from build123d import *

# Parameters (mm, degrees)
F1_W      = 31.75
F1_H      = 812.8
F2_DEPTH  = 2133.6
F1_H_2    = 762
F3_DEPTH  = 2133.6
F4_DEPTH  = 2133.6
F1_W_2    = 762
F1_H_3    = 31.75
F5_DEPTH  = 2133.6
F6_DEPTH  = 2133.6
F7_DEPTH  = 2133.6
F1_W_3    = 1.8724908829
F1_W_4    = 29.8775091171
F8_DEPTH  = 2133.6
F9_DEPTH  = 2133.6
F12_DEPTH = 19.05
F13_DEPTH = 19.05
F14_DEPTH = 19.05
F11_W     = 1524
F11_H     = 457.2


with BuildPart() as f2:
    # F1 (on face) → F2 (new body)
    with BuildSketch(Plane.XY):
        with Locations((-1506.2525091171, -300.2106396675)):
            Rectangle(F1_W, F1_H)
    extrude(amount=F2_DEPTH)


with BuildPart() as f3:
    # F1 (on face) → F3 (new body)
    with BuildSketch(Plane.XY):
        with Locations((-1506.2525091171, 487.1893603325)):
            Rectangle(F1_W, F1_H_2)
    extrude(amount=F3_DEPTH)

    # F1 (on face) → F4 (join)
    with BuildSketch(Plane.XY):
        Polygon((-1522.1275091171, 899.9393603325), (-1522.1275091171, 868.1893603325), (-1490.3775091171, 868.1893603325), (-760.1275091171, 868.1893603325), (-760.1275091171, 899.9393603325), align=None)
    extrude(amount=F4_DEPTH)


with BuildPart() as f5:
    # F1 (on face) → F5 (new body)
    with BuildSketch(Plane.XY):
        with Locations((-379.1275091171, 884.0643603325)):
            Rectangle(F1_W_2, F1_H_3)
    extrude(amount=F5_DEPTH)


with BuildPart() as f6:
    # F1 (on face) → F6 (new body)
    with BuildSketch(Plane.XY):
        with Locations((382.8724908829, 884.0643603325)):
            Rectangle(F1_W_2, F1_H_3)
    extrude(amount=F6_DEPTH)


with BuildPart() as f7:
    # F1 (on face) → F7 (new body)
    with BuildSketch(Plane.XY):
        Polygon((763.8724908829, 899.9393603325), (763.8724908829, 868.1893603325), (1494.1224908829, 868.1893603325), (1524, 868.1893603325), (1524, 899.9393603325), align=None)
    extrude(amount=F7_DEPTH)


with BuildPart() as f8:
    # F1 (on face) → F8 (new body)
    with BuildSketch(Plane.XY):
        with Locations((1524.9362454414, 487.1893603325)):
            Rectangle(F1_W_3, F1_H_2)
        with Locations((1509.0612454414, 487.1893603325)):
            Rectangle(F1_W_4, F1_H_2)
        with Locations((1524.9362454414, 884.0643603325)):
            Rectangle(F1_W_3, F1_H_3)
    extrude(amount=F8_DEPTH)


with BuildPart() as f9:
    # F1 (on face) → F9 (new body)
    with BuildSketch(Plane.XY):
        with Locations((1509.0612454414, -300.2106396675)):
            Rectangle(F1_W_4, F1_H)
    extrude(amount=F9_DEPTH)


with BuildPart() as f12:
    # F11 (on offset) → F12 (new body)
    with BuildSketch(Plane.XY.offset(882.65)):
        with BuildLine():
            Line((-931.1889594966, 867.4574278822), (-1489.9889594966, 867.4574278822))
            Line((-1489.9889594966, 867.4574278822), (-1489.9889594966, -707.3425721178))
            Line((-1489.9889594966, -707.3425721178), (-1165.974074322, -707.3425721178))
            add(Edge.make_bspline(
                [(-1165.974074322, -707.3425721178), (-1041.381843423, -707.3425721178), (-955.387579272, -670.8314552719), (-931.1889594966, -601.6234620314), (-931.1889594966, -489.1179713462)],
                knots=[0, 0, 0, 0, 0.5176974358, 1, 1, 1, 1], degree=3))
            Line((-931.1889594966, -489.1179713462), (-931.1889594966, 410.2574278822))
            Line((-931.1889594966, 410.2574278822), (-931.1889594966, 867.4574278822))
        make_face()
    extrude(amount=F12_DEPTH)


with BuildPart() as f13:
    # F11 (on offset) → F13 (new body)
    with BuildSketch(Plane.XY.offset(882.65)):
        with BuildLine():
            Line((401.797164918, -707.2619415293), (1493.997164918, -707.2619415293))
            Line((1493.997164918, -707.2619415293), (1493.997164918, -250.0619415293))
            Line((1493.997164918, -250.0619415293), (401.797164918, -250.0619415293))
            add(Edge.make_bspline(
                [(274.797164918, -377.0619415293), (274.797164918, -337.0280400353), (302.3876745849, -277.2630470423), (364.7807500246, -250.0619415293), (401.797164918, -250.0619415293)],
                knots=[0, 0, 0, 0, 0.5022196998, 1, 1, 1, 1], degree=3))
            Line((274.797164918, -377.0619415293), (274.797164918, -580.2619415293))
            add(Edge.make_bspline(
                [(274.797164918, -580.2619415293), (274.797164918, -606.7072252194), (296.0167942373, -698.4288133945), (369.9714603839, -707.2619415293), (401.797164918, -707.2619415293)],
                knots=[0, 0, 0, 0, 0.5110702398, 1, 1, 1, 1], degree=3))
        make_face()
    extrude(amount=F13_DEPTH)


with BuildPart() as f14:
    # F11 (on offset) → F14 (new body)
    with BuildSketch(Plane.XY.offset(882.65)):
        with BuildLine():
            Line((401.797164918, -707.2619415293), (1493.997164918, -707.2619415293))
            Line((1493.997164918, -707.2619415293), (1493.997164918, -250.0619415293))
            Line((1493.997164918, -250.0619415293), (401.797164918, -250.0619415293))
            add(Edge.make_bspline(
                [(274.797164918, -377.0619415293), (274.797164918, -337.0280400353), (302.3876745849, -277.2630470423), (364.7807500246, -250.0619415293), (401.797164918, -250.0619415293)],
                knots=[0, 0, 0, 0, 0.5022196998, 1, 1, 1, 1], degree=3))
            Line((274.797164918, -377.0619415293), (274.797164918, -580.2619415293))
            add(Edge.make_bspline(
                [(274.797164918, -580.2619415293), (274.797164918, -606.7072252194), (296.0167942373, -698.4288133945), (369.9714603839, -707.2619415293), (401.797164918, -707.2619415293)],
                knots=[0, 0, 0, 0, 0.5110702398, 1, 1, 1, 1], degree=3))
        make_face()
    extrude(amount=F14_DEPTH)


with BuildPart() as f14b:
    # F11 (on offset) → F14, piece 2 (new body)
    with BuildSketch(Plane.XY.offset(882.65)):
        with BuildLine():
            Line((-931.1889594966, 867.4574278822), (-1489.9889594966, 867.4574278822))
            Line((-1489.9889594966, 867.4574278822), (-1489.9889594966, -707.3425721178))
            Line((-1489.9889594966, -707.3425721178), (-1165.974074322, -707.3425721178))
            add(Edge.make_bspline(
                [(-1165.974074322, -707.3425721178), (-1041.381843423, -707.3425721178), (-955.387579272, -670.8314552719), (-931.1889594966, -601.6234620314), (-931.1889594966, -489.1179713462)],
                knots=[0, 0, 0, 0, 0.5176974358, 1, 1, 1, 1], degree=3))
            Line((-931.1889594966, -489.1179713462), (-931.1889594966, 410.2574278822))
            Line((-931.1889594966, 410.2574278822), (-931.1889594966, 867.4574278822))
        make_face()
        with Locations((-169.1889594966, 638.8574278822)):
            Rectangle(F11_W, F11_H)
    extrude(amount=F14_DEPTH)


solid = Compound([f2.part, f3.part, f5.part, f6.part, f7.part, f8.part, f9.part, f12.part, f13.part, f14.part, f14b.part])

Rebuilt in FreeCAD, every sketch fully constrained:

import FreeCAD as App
import Part
import Sketcher
from FreeCAD import Vector
Q = App.Units.Quantity


def add_polygon(sketch, points):
    """Adds a closed chain of lines whose ends are joined by coincident constraints."""
    first, n = sketch.GeometryCount, len(points)
    for a, b in zip(points, points[1:] + points[:1]):
        sketch.addGeometry(Part.LineSegment(App.Vector(*a, 0), App.Vector(*b, 0)), False)
    for i in range(n):
        sketch.addConstraint(Sketcher.Constraint("Coincident", first + i, 2, first + (i + 1) % n, 1))

doc = App.newDocument("Part")
body = doc.addObject("PartDesign::Body", "Body")

# Sketch on XY plane
sketch1 = body.newObject("Sketcher::SketchObject", "Sketch")
sketch1.AttachmentSupport = (doc.getObject("XY_Plane"), [""])
sketch1.MapMode = "FlatFace"
add_polygon(sketch1, [(-1522, 106), (-1522, -707), (-1490, -707), (-1490, 106)])  # lines 0-3
sketch1.addConstraint([
    Sketcher.Constraint("Vertical", 0),
    Sketcher.Constraint("Horizontal", 1),
    Sketcher.Constraint("Vertical", 2),
    Sketcher.Constraint("Horizontal", 3),
    Sketcher.Constraint("DistanceY", 0, 2, 0, 1, Q("32 in")),
    Sketcher.Constraint("DistanceX", 1, 1, 1, 2, Q("1.25 in")),
    Sketcher.Constraint("DistanceX", 0, 2, -1, 1, 1522.127509),
    Sketcher.Constraint("DistanceY", 0, 2, -1, 1, 706.61064),
])
pad1 = body.newObject("PartDesign::Pad", "Pad")
pad1.Profile = sketch1
pad1.Length = Q("84 in")
body2 = doc.addObject("PartDesign::Body", "Body001")

# Sketch on XY plane
sketch2 = body2.newObject("Sketcher::SketchObject", "Sketch001")
sketch2.AttachmentSupport = (doc.getObject("XY_Plane001"), [""])
sketch2.MapMode = "FlatFace"
add_polygon(sketch2, [(-1522, 868), (-1522, 106), (-1490, 106), (-1490, 868)])  # lines 0-3
sketch2.addConstraint([
    Sketcher.Constraint("Vertical", 0),
    Sketcher.Constraint("Horizontal", 1),
    Sketcher.Constraint("Vertical", 2),
    Sketcher.Constraint("Horizontal", 3),
    Sketcher.Constraint("DistanceY", 0, 2, 0, 1, Q("30 in")),
    Sketcher.Constraint("DistanceX", 1, 1, 1, 2, Q("1.25 in")),
    Sketcher.Constraint("DistanceX", 0, 2, -1, 1, 1522.127509),
    Sketcher.Constraint("DistanceY", -1, 1, 0, 2, 106.18936),
])
pad2 = body2.newObject("PartDesign::Pad", "Pad001")
pad2.Profile = sketch2
pad2.Length = Q("84 in")

# Sketch on XY plane
sketch3 = body2.newObject("Sketcher::SketchObject", "Sketch002")
sketch3.AttachmentSupport = (doc.getObject("XY_Plane001"), [""])
sketch3.MapMode = "FlatFace"
add_polygon(sketch3, [(-1522, 900), (-1522, 868), (-760, 868), (-760, 900)])  # lines 0-3
sketch3.addConstraint([
    Sketcher.Constraint("Vertical", 0),
    Sketcher.Constraint("Horizontal", 1),
    Sketcher.Constraint("Vertical", 2),
    Sketcher.Constraint("Horizontal", 3),
    Sketcher.Constraint("DistanceX", 1, 1, 1, 2, Q("30 in")),
    Sketcher.Constraint("DistanceY", 0, 2, 0, 1, Q("1.25 in")),
    Sketcher.Constraint("DistanceX", 0, 2, -1, 1, 1522.127509),
    Sketcher.Constraint("DistanceY", -1, 1, 0, 2, 868.18936),
])
pad3 = body2.newObject("PartDesign::Pad", "Pad002")
pad3.Profile = sketch3
pad3.Length = Q("84 in")
body3 = doc.addObject("PartDesign::Body", "Body002")

# Sketch on XY plane
sketch4 = body3.newObject("Sketcher::SketchObject", "Sketch003")
sketch4.AttachmentSupport = (doc.getObject("XY_Plane002"), [""])
sketch4.MapMode = "FlatFace"
add_polygon(sketch4, [(-760, 900), (-760, 868), (2, 868), (2, 900)])  # lines 0-3
sketch4.addConstraint([
    Sketcher.Constraint("Vertical", 0),
    Sketcher.Constraint("Horizontal", 1),
    Sketcher.Constraint("Vertical", 2),
    Sketcher.Constraint("Horizontal", 3),
    Sketcher.Constraint("DistanceX", 1, 1, 1, 2, Q("30 in")),
    Sketcher.Constraint("DistanceY", 0, 2, 0, 1, Q("1.25 in")),
    Sketcher.Constraint("DistanceX", 0, 2, -1, 1, 760.127509),
    Sketcher.Constraint("DistanceY", -1, 1, 0, 2, 868.18936),
])
pad4 = body3.newObject("PartDesign::Pad", "Pad003")
pad4.Profile = sketch4
pad4.Length = Q("84 in")
body4 = doc.addObject("PartDesign::Body", "Body003")

# Sketch on XY plane
sketch5 = body4.newObject("Sketcher::SketchObject", "Sketch004")
sketch5.AttachmentSupport = (doc.getObject("XY_Plane003"), [""])
sketch5.MapMode = "FlatFace"
add_polygon(sketch5, [(2, 900), (2, 868), (764, 868), (764, 900)])  # lines 0-3
sketch5.addConstraint([
    Sketcher.Constraint("Vertical", 0),
    Sketcher.Constraint("Horizontal", 1),
    Sketcher.Constraint("Vertical", 2),
    Sketcher.Constraint("Horizontal", 3),
    Sketcher.Constraint("DistanceX", 1, 1, 1, 2, Q("30 in")),
    Sketcher.Constraint("DistanceY", 0, 2, 0, 1, Q("1.25 in")),
    Sketcher.Constraint("DistanceX", -1, 1, 0, 2, 1.872491),
    Sketcher.Constraint("DistanceY", -1, 1, 0, 2, 868.18936),
])
pad5 = body4.newObject("PartDesign::Pad", "Pad004")
pad5.Profile = sketch5
pad5.Length = Q("84 in")
body5 = doc.addObject("PartDesign::Body", "Body004")

# Sketch on XY plane
sketch6 = body5.newObject("Sketcher::SketchObject", "Sketch005")
sketch6.AttachmentSupport = (doc.getObject("XY_Plane004"), [""])
sketch6.MapMode = "FlatFace"
add_polygon(sketch6, [(764, 900), (764, 868), (1524, 868), (1524, 900)])  # lines 0-3
sketch6.addConstraint([
    Sketcher.Constraint("Vertical", 0),
    Sketcher.Constraint("Horizontal", 1),
    Sketcher.Constraint("Vertical", 2),
    Sketcher.Constraint("Horizontal", 3),
    Sketcher.Constraint("DistanceX", -1, 1, 1, 2, Q("60 in")),
    Sketcher.Constraint("DistanceY", 0, 2, 0, 1, Q("1.25 in")),
    Sketcher.Constraint("DistanceX", 1, 1, 1, 2, 760.127509),
    Sketcher.Constraint("DistanceY", -1, 1, 0, 2, 868.18936),
])
pad6 = body5.newObject("PartDesign::Pad", "Pad005")
pad6.Profile = sketch6
pad6.Length = Q("84 in")
body6 = doc.addObject("PartDesign::Body", "Body005")

# Sketch on XY plane
sketch7 = body6.newObject("Sketcher::SketchObject", "Sketch006")
sketch7.AttachmentSupport = (doc.getObject("XY_Plane005"), [""])
sketch7.MapMode = "FlatFace"
add_polygon(sketch7, [(1525.9, 106.2), (1525.9, 899.9), (1524, 899.9), (1524, 868.2), (1494.1, 868.2), (1494.1, 106.2)])  # lines 0-5
sketch7.addConstraint([
    Sketcher.Constraint("Vertical", 0),
    Sketcher.Constraint("Horizontal", 1),
    Sketcher.Constraint("Vertical", 2),
    Sketcher.Constraint("Horizontal", 3),
    Sketcher.Constraint("Vertical", 4),
    Sketcher.Constraint("Horizontal", 5),
    Sketcher.Constraint("Equal", 5, 2),
    Sketcher.Constraint("DistanceY", 4, 2, 4, 1, Q("30 in")),
    Sketcher.Constraint("DistanceX", -1, 1, 1, 2, Q("60 in")),
    Sketcher.Constraint("DistanceX", 5, 1, 5, 2, Q("1.25 in")),
    Sketcher.Constraint("DistanceX", 1, 2, 1, 1, 1.872491),
    Sketcher.Constraint("DistanceY", -1, 1, 0, 2, 899.93936),
])
pad7 = body6.newObject("PartDesign::Pad", "Pad006")
pad7.Profile = sketch7
pad7.Length = Q("84 in")
body7 = doc.addObject("PartDesign::Body", "Body006")

# Sketch on XY plane
sketch8 = body7.newObject("Sketcher::SketchObject", "Sketch007")
sketch8.AttachmentSupport = (doc.getObject("XY_Plane006"), [""])
sketch8.MapMode = "FlatFace"
add_polygon(sketch8, [(1494, 106), (1494, -707), (1524, -707), (1524, 106)])  # lines 0-3
sketch8.addConstraint([
    Sketcher.Constraint("Vertical", 0),
    Sketcher.Constraint("Horizontal", 1),
    Sketcher.Constraint("Vertical", 2),
    Sketcher.Constraint("Horizontal", 3),
    Sketcher.Constraint("DistanceY", 0, 2, 0, 1, Q("32 in")),
    Sketcher.Constraint("DistanceX", -1, 1, 1, 2, Q("60 in")),
    Sketcher.Constraint("DistanceX", 1, 1, 1, 2, 29.877509),
    Sketcher.Constraint("DistanceY", 0, 2, -1, 1, 706.61064),
])
pad8 = body7.newObject("PartDesign::Pad", "Pad007")
pad8.Profile = sketch8
pad8.Length = Q("84 in")
body8 = doc.addObject("PartDesign::Body", "Body007")

# Sketch on XY plane
sketch9 = body8.newObject("Sketcher::SketchObject", "Sketch008")
sketch9.AttachmentSupport = (doc.getObject("XY_Plane007"), [""])
sketch9.MapMode = "FlatFace"
sketch9.AttachmentOffset = App.Placement(Vector(0, 0, 34.75 * 25.4), App.Rotation())
sketch9.addGeometry([
    Part.LineSegment(Vector(-931.188959, 867.457428, 0), Vector(-1489.988959, 867.457428, 0)),  # 0
    Part.LineSegment(Vector(-1489.988959, 867.457428, 0), Vector(-1489.988959, -707.342572, 0)),  # 1
    Part.LineSegment(Vector(-1489.988959, -707.342572, 0), Vector(-1165.974074, -707.342572, 0)),  # 2
    Part.BSplineCurve([Vector(-1165.974074, -707.342572, 0), Vector(-1041.381843, -707.342572, 0), Vector(-955.387579, -670.831455, 0), Vector(-931.188959, -601.623462, 0), Vector(-931.188959, -489.117971, 0)], [4, 1, 4], [0, 0.517697436, 1], False, 3, [1, 1, 1, 1, 1], False),  # 3
    Part.LineSegment(Vector(-931.188959, -489.117971, 0), Vector(-931.188959, 867.457428, 0)),  # 4
], False)
sketch9.addConstraint([
    Sketcher.Constraint("Block", 3),
    Sketcher.Constraint("Coincident", 0, 2, 1, 1),
    Sketcher.Constraint("Coincident", 1, 2, 2, 1),
    Sketcher.Constraint("Coincident", 2, 2, 3, 1),
    Sketcher.Constraint("Coincident", 3, 2, 4, 1),
    Sketcher.Constraint("Coincident", 4, 2, 0, 1),
    Sketcher.Constraint("Horizontal", 0),
    Sketcher.Constraint("Vertical", 1),
    Sketcher.Constraint("Horizontal", 2),
    Sketcher.Constraint("Vertical", 4),
    Sketcher.Constraint("DistanceX", 0, 2, 0, 1, Q("22 in")),
    Sketcher.Constraint("DistanceY", 1, 2, 1, 1, Q("62 in")),
])
pad9 = body8.newObject("PartDesign::Pad", "Pad008")
pad9.Profile = sketch9
pad9.Length = Q("0.75 in")
body9 = doc.addObject("PartDesign::Body", "Body008")

# Sketch on XY plane
sketch10 = body9.newObject("Sketcher::SketchObject", "Sketch009")
sketch10.AttachmentSupport = (doc.getObject("XY_Plane008"), [""])
sketch10.MapMode = "FlatFace"
sketch10.AttachmentOffset = App.Placement(Vector(0, 0, 34.75 * 25.4), App.Rotation())
sketch10.addGeometry([
    Part.LineSegment(Vector(401.797165, -707.261942, 0), Vector(1493.997165, -707.261942, 0)),  # 0
    Part.LineSegment(Vector(1493.997165, -707.261942, 0), Vector(1493.997165, -250.061942, 0)),  # 1
    Part.LineSegment(Vector(1493.997165, -250.061942, 0), Vector(401.797165, -250.061942, 0)),  # 2
    Part.BSplineCurve([Vector(274.797165, -377.061942, 0), Vector(274.797165, -337.02804, 0), Vector(302.387675, -277.263047, 0), Vector(364.78075, -250.061942, 0), Vector(401.797165, -250.061942, 0)], [4, 1, 4], [0, 0.5022197, 1], False, 3, [1, 1, 1, 1, 1], False),  # 3
    Part.LineSegment(Vector(274.797165, -377.061942, 0), Vector(274.797165, -580.261942, 0)),  # 4
    Part.BSplineCurve([Vector(274.797165, -580.261942, 0), Vector(274.797165, -606.707225, 0), Vector(296.016794, -698.428813, 0), Vector(369.97146, -707.261942, 0), Vector(401.797165, -707.261942, 0)], [4, 1, 4], [0, 0.51107024, 1], False, 3, [1, 1, 1, 1, 1], False),  # 5
], False)
sketch10.addConstraint([
    Sketcher.Constraint("Block", 3),
    Sketcher.Constraint("Block", 5),
    Sketcher.Constraint("Coincident", 0, 2, 1, 1),
    Sketcher.Constraint("Coincident", 1, 2, 2, 1),
    Sketcher.Constraint("Coincident", 2, 2, 3, 2),
    Sketcher.Constraint("Coincident", 3, 1, 4, 1),
    Sketcher.Constraint("Coincident", 4, 2, 5, 1),
    Sketcher.Constraint("Coincident", 5, 2, 0, 1),
    Sketcher.Constraint("Horizontal", 0),
    Sketcher.Constraint("Vertical", 1),
    Sketcher.Constraint("Horizontal", 2),
    Sketcher.Constraint("DistanceX", 0, 1, 0, 2, Q("43 in")),
])
pad10 = body9.newObject("PartDesign::Pad", "Pad009")
pad10.Profile = sketch10
pad10.Length = Q("0.75 in")
body10 = doc.addObject("PartDesign::Body", "Body009")

# Sketch on XY plane
sketch11 = body10.newObject("Sketcher::SketchObject", "Sketch010")
sketch11.AttachmentSupport = (doc.getObject("XY_Plane009"), [""])
sketch11.MapMode = "FlatFace"
sketch11.AttachmentOffset = App.Placement(Vector(0, 0, 34.75 * 25.4), App.Rotation())
sketch11.addGeometry([
    Part.LineSegment(Vector(401.797165, -707.261942, 0), Vector(1493.997165, -707.261942, 0)),  # 0
    Part.LineSegment(Vector(1493.997165, -707.261942, 0), Vector(1493.997165, -250.061942, 0)),  # 1
    Part.LineSegment(Vector(1493.997165, -250.061942, 0), Vector(401.797165, -250.061942, 0)),  # 2
    Part.BSplineCurve([Vector(274.797165, -377.061942, 0), Vector(274.797165, -337.02804, 0), Vector(302.387675, -277.263047, 0), Vector(364.78075, -250.061942, 0), Vector(401.797165, -250.061942, 0)], [4, 1, 4], [0, 0.5022197, 1], False, 3, [1, 1, 1, 1, 1], False),  # 3
    Part.LineSegment(Vector(274.797165, -377.061942, 0), Vector(274.797165, -580.261942, 0)),  # 4
    Part.BSplineCurve([Vector(274.797165, -580.261942, 0), Vector(274.797165, -606.707225, 0), Vector(296.016794, -698.428813, 0), Vector(369.97146, -707.261942, 0), Vector(401.797165, -707.261942, 0)], [4, 1, 4], [0, 0.51107024, 1], False, 3, [1, 1, 1, 1, 1], False),  # 5
], False)
sketch11.addConstraint([
    Sketcher.Constraint("Block", 3),
    Sketcher.Constraint("Block", 5),
    Sketcher.Constraint("Coincident", 0, 2, 1, 1),
    Sketcher.Constraint("Coincident", 1, 2, 2, 1),
    Sketcher.Constraint("Coincident", 2, 2, 3, 2),
    Sketcher.Constraint("Coincident", 3, 1, 4, 1),
    Sketcher.Constraint("Coincident", 4, 2, 5, 1),
    Sketcher.Constraint("Coincident", 5, 2, 0, 1),
    Sketcher.Constraint("Horizontal", 0),
    Sketcher.Constraint("Vertical", 1),
    Sketcher.Constraint("Horizontal", 2),
    Sketcher.Constraint("DistanceX", 0, 1, 0, 2, Q("43 in")),
])
pad11 = body10.newObject("PartDesign::Pad", "Pad010")
pad11.Profile = sketch11
pad11.Length = Q("0.75 in")
body11 = doc.addObject("PartDesign::Body", "Body010")

# Sketch on XY plane
sketch12 = body11.newObject("Sketcher::SketchObject", "Sketch011")
sketch12.AttachmentSupport = (doc.getObject("XY_Plane010"), [""])
sketch12.MapMode = "FlatFace"
sketch12.AttachmentOffset = App.Placement(Vector(0, 0, 34.75 * 25.4), App.Rotation())
sketch12.addGeometry([
    Part.LineSegment(Vector(-1489.988959, 867.457428, 0), Vector(-1489.988959, -707.342572, 0)),  # 0
    Part.LineSegment(Vector(-1489.988959, -707.342572, 0), Vector(-1165.974074, -707.342572, 0)),  # 1
    Part.BSplineCurve([Vector(-1165.974074, -707.342572, 0), Vector(-1041.381843, -707.342572, 0), Vector(-955.387579, -670.831455, 0), Vector(-931.188959, -601.623462, 0), Vector(-931.188959, -489.117971, 0)], [4, 1, 4], [0, 0.517697436, 1], False, 3, [1, 1, 1, 1, 1], False),  # 2
    Part.LineSegment(Vector(-931.188959, -489.117971, 0), Vector(-931.188959, 410.257428, 0)),  # 3
    Part.LineSegment(Vector(-931.188959, 410.257428, 0), Vector(592.811041, 410.257428, 0)),  # 4
    Part.LineSegment(Vector(592.811041, 410.257428, 0), Vector(592.811041, 867.457428, 0)),  # 5
    Part.LineSegment(Vector(592.811041, 867.457428, 0), Vector(-1489.988959, 867.457428, 0)),  # 6
], False)
sketch12.addConstraint([
    Sketcher.Constraint("Block", 2),
    Sketcher.Constraint("Coincident", 0, 2, 1, 1),
    Sketcher.Constraint("Coincident", 1, 2, 2, 1),
    Sketcher.Constraint("Coincident", 2, 2, 3, 1),
    Sketcher.Constraint("Coincident", 3, 2, 4, 1),
    Sketcher.Constraint("Coincident", 4, 2, 5, 1),
    Sketcher.Constraint("Coincident", 5, 2, 6, 1),
    Sketcher.Constraint("Coincident", 6, 2, 0, 1),
    Sketcher.Constraint("Vertical", 0),
    Sketcher.Constraint("Horizontal", 1),
    Sketcher.Constraint("Vertical", 3),
    Sketcher.Constraint("Horizontal", 4),
    Sketcher.Constraint("Vertical", 5),
    Sketcher.Constraint("Horizontal", 6),
    Sketcher.Constraint("DistanceX", 4, 1, 4, 2, Q("60 in")),
    Sketcher.Constraint("DistanceX", 6, 2, 6, 1, Q("82 in")),
    Sketcher.Constraint("DistanceY", 0, 2, 0, 1, Q("62 in")),
    Sketcher.Constraint("DistanceY", 5, 1, 5, 2, Q("18 in")),
])
pad12 = body11.newObject("PartDesign::Pad", "Pad011")
pad12.Profile = sketch12
pad12.Length = Q("0.75 in")

doc.recompute()
